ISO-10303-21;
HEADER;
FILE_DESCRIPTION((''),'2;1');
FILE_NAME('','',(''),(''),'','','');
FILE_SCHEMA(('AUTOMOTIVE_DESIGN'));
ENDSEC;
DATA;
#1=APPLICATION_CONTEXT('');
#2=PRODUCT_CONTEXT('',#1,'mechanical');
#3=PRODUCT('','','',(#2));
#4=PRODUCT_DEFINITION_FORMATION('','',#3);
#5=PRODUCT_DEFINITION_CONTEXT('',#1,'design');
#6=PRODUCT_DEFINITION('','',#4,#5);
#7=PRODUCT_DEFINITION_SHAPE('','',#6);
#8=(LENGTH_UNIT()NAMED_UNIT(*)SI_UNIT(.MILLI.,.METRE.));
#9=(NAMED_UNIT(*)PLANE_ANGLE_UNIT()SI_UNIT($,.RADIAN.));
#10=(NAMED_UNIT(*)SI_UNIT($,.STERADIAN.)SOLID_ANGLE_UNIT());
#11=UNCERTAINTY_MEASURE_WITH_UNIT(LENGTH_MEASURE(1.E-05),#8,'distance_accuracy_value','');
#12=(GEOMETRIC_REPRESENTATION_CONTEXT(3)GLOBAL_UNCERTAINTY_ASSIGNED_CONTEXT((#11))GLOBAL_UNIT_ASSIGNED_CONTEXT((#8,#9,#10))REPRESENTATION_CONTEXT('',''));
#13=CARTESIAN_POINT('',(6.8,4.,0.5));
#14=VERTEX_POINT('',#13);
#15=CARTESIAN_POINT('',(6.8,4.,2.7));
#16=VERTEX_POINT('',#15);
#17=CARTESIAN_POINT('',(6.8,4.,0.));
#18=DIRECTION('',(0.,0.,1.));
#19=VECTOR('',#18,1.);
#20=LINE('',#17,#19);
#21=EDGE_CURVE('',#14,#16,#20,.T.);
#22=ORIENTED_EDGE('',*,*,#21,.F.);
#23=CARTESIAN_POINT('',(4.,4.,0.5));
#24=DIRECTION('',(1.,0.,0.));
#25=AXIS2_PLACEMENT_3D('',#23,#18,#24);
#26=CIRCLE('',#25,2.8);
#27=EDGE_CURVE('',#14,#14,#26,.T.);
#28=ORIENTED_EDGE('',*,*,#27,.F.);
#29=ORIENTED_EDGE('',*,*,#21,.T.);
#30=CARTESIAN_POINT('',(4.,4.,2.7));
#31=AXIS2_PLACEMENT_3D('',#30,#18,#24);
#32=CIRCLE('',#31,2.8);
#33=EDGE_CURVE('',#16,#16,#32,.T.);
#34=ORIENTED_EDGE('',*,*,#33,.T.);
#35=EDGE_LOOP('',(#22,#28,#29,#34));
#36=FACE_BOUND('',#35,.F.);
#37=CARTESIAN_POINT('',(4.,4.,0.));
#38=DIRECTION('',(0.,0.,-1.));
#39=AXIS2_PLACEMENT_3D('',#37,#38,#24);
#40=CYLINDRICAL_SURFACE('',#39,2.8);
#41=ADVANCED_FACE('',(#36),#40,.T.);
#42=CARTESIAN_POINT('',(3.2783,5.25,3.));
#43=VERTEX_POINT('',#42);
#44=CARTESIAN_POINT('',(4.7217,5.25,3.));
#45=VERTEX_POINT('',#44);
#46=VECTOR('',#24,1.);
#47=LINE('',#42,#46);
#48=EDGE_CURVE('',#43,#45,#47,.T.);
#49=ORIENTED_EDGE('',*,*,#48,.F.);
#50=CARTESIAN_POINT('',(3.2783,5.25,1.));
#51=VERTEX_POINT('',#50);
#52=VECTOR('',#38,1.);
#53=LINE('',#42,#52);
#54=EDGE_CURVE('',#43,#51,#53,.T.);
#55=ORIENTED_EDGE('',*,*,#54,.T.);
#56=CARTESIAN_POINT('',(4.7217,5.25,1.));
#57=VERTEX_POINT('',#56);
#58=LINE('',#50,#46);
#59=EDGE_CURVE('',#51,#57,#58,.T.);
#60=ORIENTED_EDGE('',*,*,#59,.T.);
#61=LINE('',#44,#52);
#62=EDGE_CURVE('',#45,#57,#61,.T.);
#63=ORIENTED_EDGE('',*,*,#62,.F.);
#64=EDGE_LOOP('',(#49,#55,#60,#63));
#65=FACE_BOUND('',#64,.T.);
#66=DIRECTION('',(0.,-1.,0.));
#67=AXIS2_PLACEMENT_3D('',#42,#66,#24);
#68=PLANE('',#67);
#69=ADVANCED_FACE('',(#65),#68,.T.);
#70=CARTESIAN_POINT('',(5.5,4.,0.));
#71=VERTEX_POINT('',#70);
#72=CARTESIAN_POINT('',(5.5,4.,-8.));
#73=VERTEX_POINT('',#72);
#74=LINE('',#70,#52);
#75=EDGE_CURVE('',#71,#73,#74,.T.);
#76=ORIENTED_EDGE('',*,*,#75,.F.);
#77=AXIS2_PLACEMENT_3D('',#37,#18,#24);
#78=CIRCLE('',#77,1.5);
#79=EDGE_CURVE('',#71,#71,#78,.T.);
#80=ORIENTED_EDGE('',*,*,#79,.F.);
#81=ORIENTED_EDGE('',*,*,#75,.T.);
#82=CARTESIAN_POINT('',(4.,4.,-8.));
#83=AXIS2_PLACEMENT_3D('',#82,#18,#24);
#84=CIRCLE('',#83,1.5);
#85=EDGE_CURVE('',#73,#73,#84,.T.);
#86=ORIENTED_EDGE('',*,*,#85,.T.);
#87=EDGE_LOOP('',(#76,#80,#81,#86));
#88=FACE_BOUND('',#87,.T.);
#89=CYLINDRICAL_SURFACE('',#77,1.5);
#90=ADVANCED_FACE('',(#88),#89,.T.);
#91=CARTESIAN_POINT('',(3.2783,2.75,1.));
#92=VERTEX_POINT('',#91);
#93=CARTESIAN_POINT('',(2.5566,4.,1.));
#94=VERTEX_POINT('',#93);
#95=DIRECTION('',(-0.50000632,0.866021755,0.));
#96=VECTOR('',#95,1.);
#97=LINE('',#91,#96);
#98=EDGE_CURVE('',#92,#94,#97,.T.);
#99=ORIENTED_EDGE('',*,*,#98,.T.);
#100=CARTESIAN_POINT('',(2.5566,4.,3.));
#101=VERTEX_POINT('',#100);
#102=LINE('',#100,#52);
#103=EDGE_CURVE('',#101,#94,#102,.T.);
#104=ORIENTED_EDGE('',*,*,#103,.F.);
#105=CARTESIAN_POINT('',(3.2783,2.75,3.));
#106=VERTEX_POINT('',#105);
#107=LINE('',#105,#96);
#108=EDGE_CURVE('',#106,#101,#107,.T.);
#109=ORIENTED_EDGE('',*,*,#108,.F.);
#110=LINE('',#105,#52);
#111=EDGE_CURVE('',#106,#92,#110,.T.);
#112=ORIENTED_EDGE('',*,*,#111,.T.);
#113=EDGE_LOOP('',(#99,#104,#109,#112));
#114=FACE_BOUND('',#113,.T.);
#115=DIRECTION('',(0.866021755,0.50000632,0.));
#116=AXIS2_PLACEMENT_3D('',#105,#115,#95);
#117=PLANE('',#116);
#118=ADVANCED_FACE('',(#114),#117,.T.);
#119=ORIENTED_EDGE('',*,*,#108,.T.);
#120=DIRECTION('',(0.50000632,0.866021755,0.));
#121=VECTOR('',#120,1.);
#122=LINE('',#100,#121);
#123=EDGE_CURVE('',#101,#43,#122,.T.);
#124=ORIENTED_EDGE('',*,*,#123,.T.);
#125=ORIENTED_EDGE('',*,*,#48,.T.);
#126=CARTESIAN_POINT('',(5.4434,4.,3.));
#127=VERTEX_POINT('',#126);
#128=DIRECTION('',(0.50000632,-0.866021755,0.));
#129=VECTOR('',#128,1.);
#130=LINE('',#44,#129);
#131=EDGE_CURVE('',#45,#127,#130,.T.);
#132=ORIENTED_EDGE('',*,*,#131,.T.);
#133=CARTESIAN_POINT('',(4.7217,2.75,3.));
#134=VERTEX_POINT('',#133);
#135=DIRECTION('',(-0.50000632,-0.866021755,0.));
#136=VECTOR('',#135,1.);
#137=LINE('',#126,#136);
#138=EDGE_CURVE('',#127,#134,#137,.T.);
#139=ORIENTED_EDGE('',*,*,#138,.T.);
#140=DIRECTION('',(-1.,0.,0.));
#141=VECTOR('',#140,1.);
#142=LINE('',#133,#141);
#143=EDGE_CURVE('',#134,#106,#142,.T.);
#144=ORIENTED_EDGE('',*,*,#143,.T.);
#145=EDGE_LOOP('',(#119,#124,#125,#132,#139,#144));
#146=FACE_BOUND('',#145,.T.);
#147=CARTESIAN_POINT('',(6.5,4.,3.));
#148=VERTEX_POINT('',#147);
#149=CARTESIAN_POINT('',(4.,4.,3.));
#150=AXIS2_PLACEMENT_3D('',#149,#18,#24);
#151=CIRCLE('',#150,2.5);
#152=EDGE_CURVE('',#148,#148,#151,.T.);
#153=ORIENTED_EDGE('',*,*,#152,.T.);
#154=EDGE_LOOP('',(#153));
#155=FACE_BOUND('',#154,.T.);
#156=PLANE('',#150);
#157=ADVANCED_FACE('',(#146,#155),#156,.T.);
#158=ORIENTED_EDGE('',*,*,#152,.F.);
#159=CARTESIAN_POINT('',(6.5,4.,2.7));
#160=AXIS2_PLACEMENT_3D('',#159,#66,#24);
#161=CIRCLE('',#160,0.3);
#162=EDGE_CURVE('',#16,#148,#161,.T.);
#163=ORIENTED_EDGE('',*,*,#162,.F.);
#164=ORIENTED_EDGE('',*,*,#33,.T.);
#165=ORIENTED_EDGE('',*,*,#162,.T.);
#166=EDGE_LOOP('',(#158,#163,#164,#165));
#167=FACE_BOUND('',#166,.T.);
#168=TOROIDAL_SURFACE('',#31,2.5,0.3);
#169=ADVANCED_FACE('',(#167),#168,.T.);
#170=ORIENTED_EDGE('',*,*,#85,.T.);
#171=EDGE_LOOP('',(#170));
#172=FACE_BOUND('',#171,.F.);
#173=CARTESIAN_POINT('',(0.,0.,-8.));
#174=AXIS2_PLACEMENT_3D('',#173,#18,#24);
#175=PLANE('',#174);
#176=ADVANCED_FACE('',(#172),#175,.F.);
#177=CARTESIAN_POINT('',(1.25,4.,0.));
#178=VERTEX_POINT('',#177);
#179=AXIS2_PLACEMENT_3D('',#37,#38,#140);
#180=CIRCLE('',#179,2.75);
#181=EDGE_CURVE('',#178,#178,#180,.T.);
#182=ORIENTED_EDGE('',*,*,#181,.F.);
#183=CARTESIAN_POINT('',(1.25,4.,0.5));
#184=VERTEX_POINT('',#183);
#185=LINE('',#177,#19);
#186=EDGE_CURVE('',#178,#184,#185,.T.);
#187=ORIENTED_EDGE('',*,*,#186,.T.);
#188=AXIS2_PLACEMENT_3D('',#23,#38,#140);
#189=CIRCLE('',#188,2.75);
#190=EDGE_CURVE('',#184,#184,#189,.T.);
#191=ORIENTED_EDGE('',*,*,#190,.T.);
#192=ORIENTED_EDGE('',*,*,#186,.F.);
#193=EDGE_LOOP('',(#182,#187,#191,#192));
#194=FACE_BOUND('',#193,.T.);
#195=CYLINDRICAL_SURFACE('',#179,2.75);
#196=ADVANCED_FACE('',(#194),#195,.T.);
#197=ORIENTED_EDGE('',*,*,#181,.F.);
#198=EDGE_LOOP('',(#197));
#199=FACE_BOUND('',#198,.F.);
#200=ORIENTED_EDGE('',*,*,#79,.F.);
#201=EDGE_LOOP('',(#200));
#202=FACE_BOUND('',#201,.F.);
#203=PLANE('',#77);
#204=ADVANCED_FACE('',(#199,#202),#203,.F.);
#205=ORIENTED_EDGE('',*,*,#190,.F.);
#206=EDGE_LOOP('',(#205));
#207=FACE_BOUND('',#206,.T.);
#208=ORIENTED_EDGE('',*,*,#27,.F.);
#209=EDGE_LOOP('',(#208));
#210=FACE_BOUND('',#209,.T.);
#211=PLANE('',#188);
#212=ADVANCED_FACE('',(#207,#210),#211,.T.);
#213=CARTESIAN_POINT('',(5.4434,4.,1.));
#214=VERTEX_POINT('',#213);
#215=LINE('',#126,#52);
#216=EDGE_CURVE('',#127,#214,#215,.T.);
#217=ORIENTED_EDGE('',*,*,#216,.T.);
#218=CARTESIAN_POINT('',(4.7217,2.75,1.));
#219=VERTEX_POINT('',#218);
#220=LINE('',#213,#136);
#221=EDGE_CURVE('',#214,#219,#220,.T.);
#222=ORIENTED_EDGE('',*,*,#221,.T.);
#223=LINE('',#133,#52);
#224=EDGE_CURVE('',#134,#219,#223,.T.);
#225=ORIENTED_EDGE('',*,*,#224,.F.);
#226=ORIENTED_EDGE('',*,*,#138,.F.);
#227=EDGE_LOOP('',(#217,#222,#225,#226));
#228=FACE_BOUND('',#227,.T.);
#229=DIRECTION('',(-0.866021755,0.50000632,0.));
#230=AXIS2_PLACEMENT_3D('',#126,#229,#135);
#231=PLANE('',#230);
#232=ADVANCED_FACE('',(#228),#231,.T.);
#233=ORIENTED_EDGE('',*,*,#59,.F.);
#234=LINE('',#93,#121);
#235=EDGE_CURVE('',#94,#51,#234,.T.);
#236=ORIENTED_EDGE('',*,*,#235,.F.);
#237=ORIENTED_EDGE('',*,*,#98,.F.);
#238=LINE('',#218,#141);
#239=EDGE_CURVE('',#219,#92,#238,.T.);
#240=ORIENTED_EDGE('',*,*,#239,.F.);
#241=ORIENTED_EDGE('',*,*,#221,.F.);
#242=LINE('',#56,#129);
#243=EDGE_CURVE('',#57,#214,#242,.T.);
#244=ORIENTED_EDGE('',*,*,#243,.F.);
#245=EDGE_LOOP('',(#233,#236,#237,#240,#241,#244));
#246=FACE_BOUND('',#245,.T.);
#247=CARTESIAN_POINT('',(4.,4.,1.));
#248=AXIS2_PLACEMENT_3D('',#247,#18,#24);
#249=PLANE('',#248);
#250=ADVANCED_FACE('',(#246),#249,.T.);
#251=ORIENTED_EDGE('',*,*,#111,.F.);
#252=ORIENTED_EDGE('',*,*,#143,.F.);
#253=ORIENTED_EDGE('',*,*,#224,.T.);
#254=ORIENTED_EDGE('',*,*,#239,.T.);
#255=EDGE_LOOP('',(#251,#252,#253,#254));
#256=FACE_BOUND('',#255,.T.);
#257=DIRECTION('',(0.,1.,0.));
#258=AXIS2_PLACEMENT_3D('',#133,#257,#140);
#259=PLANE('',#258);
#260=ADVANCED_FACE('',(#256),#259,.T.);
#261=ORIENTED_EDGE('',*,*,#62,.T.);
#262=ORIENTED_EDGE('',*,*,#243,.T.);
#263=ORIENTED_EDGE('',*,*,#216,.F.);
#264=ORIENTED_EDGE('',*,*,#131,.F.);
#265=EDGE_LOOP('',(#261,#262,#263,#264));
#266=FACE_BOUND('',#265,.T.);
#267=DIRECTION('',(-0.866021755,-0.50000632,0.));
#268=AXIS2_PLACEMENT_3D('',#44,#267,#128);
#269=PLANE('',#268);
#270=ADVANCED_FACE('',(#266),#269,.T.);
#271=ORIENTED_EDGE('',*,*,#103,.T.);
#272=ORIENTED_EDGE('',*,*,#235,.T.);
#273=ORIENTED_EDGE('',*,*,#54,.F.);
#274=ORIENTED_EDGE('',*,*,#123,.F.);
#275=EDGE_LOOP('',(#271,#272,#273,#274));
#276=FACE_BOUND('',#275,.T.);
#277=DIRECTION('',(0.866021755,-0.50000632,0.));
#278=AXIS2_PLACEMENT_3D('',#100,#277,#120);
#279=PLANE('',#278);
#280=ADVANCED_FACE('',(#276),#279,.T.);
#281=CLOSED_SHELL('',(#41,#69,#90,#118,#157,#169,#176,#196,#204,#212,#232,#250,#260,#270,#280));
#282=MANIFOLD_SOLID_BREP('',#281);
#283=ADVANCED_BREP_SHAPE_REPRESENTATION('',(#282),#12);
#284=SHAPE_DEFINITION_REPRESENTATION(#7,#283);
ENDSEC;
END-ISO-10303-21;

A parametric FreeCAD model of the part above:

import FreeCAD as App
import Part
import Sketcher

V = App.Vector
Q = App.Units.Quantity


def edges_at(feature, points):
    """Names of the edges that pass closest to the given points."""
    edges = feature.Shape.Edges
    near = lambda p: min(range(len(edges)), key=lambda i: edges[i].distToShape(Part.Vertex(*p))[0])
    return sorted({f"Edge{near(p) + 1}" for p in points})

doc = App.newDocument("Part")
body = doc.addObject("PartDesign::Body", "Body")

sketch1 = body.newObject("Sketcher::SketchObject", "Sketch")
sketch1.AttachmentSupport = (doc.getObject("XY_Plane"), [""])
sketch1.MapMode = "FlatFace"
sketch1.addGeometry(Part.Circle(V(4, 4, 0), V(0, 0, 1), 1.5), False)
sketch1.addConstraint(Sketcher.Constraint("Diameter", 0, 3.0))
sketch1.addConstraint(Sketcher.Constraint("DistanceX", -1, 1, 0, 3, 4.0))
sketch1.addConstraint(Sketcher.Constraint("DistanceY", -1, 1, 0, 3, 4.0))
pad1 = body.newObject("PartDesign::Pad", "Pad")
pad1.Profile = sketch1
pad1.Length = 8
pad1.Reversed = True

sketch2 = body.newObject("Sketcher::SketchObject", "Sketch001")
sketch2.AttachmentSupport = (doc.getObject("XY_Plane"), [""])
sketch2.MapMode = "FlatFace"
sketch2.addGeometry(Part.Circle(V(4, 4, 0), V(0, 0, 1), 2.8), False)
sketch2.addConstraint(Sketcher.Constraint("Diameter", 0, 5.6))
sketch2.addConstraint(Sketcher.Constraint("DistanceX", -1, 1, 0, 3, 4.0))
sketch2.addConstraint(Sketcher.Constraint("DistanceY", -1, 1, 0, 3, 4.0))
pad2 = body.newObject("PartDesign::Pad", "Pad001")
pad2.Profile = sketch2
pad2.Length = 3
doc.recompute()

fillet = body.newObject("PartDesign::Fillet", "Fillet")
fillet.Base = (pad2, edges_at(pad2, [(1.2, 4, 3)]))
fillet.Radius = 0.3

sketch3 = body.newObject("Sketcher::SketchObject", "Sketch002")
sketch3.AttachmentSupport = (doc.getObject("XY_Plane"), [""])
sketch3.MapMode = "FlatFace"
sketch3.addGeometry(Part.Circle(V(4, 4, 0), V(0, 0, 1), 2.8), False)
sketch3.addGeometry(Part.Circle(V(4, 4, 0), V(0, 0, 1), 2.8), False)
sketch3.addConstraint(Sketcher.Constraint("Coincident", 1, 3, 0, 3))
sketch3.addConstraint(Sketcher.Constraint("Diameter", 1, 5.5))
sketch3.addConstraint(Sketcher.Constraint("Diameter", 0, 5.6))
sketch3.addConstraint(Sketcher.Constraint("DistanceX", -1, 1, 0, 3, 4.0))
sketch3.addConstraint(Sketcher.Constraint("DistanceY", -1, 1, 0, 3, 4.0))
pocket1 = body.newObject("PartDesign::Pocket", "Pocket")
pocket1.Profile = sketch3
pocket1.Length = 0.5
pocket1.Reversed = True

sketch4 = body.newObject("Sketcher::SketchObject", "Sketch003")
sketch4.AttachmentSupport = (doc.getObject("XY_Plane"), [""])
sketch4.MapMode = "FlatFace"
sketch4.AttachmentOffset = App.Placement(V(0, 0, 3), App.Rotation())
sketch4.addGeometry(Part.LineSegment(V(5.4, 4, 0), V(4.7, 5.2, 0)), False)
sketch4.addGeometry(Part.LineSegment(V(4.7, 5.2, 0), V(3.3, 5.2, 0)), False)
sketch4.addGeometry(Part.LineSegment(V(3.3, 5.2, 0), V(2.6, 4, 0)), False)
sketch4.addGeometry(Part.LineSegment(V(2.6, 4, 0), V(3.3, 2.8, 0)), False)
sketch4.addGeometry(Part.LineSegment(V(3.3, 2.8, 0), V(4.7, 2.8, 0)), False)
sketch4.addGeometry(Part.LineSegment(V(4.7, 2.8, 0), V(5.4, 4, 0)), False)
sketch4.addConstraint(Sketcher.Constraint("Coincident", 0, 2, 1, 1))
sketch4.addConstraint(Sketcher.Constraint("Coincident", 1, 2, 2, 1))
sketch4.addConstraint(Sketcher.Constraint("Coincident", 2, 2, 3, 1))
sketch4.addConstraint(Sketcher.Constraint("Coincident", 3, 2, 4, 1))
sketch4.addConstraint(Sketcher.Constraint("Coincident", 4, 2, 5, 1))
sketch4.addConstraint(Sketcher.Constraint("Coincident", 5, 2, 0, 1))
sketch4.addConstraint(Sketcher.Constraint("Horizontal", 1))
sketch4.addConstraint(Sketcher.Constraint("Horizontal", 4))
sketch4.addConstraint(Sketcher.Constraint("Parallel", 0, 3))
sketch4.addConstraint(Sketcher.Constraint("Parallel", 2, 5))
sketch4.addConstraint(Sketcher.Constraint("Horizontal", 2, 2, 5, 2))
sketch4.addConstraint(Sketcher.Constraint("Vertical", 1, 2, 3, 2))
sketch4.addConstraint(Sketcher.Constraint("Vertical", 0, 2, 4, 2))
sketch4.addConstraint(Sketcher.Constraint("DistanceY", 3, 2, 1, 2, 2.5))
sketch4.addConstraint(Sketcher.Constraint("Angle", 0, Q("120.0004 deg")))
sketch4.addConstraint(Sketcher.Constraint("DistanceY", -1, 1, 2, 2, 4.0))
sketch4.addConstraint(Sketcher.Constraint("DistanceX", 1, 2, 1, 1, 1.4434))
sketch4.addConstraint(Sketcher.Constraint("DistanceX", -1, 1, 0, 2, 4.7217))
pocket2 = body.newObject("PartDesign::Pocket", "Pocket001")
pocket2.Profile = sketch4
pocket2.Length = 2

doc.recompute()
